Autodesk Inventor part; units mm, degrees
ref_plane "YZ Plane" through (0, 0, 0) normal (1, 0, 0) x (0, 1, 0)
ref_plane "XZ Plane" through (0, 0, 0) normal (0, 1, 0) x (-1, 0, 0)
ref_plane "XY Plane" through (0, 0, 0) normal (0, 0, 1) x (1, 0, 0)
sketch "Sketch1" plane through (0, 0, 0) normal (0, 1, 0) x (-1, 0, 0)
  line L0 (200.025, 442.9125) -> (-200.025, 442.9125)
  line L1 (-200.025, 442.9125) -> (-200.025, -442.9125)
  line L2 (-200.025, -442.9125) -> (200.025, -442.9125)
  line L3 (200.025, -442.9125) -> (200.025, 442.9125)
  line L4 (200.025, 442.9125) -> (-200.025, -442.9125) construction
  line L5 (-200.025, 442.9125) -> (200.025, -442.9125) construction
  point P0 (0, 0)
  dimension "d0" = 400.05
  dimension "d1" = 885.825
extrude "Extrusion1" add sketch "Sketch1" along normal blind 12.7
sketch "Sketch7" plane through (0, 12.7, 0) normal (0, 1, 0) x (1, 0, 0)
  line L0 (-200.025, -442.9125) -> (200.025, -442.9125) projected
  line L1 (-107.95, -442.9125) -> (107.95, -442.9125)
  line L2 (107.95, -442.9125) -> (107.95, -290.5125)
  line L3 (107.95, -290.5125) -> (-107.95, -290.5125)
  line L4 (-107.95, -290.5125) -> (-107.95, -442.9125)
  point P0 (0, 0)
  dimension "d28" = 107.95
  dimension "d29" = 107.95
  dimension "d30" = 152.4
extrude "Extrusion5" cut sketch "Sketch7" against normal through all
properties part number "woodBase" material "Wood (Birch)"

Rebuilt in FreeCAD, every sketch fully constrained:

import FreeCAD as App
import Part
import Sketcher
from FreeCAD import Vector
Q = App.Units.Quantity


def add_polygon(sketch, points):
    """Adds a closed chain of lines whose ends are joined by coincident constraints."""
    first, n = sketch.GeometryCount, len(points)
    for a, b in zip(points, points[1:] + points[:1]):
        sketch.addGeometry(Part.LineSegment(App.Vector(*a, 0), App.Vector(*b, 0)), False)
    for i in range(n):
        sketch.addConstraint(Sketcher.Constraint("Coincident", first + i, 2, first + (i + 1) % n, 1))

doc = App.newDocument("Part")
body = doc.addObject("PartDesign::Body", "Body")

# Sketch on XZ plane
sketch1 = doc.addObject("Sketcher::SketchObject", "Sketch")
body.addObject(sketch1)
sketch1.AttachmentSupport = (doc.XZ_Plane, [""])
sketch1.MapMode = "FlatFace"
add_polygon(sketch1, [(-200, -443), (-200, 443), (200, 443), (200, -443)])  # lines 0-3
sketch1.addConstraint([
    Sketcher.Constraint("Vertical", 0),
    Sketcher.Constraint("Horizontal", 1),
    Sketcher.Constraint("Vertical", 2),
    Sketcher.Constraint("Horizontal", 3),
    Sketcher.Constraint("Symmetric", 0, 2, 2, 2, -1, 1),
    Sketcher.Constraint("DistanceX", 1, 1, 1, 2, Q("15.75 in")),
    Sketcher.Constraint("DistanceY", 0, 1, 0, 2, Q("34.875 in")),
])
pad1 = doc.addObject("PartDesign::Pad", "Pad")
body.addObject(pad1)
pad1.Profile = sketch1
pad1.Length = Q("0.5 in")
pad1.Reversed = True

# Sketch on XZ plane
sketch2 = doc.addObject("Sketcher::SketchObject", "Sketch001")
body.addObject(sketch2)
sketch2.AttachmentSupport = (doc.XZ_Plane, [""])
sketch2.MapMode = "FlatFace"
sketch2.AttachmentOffset = App.Placement(Vector(0, 0, -0.5 * 25.4), App.Rotation())
add_polygon(sketch2, [(-108, 291), (-108, 443), (108, 443), (108, 291)])  # lines 0-3
sketch2.addConstraint([
    Sketcher.Constraint("Vertical", 0),
    Sketcher.Constraint("Horizontal", 1),
    Sketcher.Constraint("Vertical", 2),
    Sketcher.Constraint("Horizontal", 3),
    Sketcher.Constraint("DistanceY", 0, 1, 0, 2, Q("6 in")),
    Sketcher.Constraint("DistanceX", 0, 2, -1, 1, Q("4.25 in")),
    Sketcher.Constraint("DistanceX", -1, 1, 1, 2, Q("4.25 in")),
    Sketcher.Constraint("DistanceY", -1, 1, 0, 2, Q("17.4375 in")),
])
pocket1 = doc.addObject("PartDesign::Pocket", "Pocket")
body.addObject(pocket1)
pocket1.Profile = sketch2
pocket1.Type = "ThroughAll"
pocket1.Reversed = True

doc.recompute()
